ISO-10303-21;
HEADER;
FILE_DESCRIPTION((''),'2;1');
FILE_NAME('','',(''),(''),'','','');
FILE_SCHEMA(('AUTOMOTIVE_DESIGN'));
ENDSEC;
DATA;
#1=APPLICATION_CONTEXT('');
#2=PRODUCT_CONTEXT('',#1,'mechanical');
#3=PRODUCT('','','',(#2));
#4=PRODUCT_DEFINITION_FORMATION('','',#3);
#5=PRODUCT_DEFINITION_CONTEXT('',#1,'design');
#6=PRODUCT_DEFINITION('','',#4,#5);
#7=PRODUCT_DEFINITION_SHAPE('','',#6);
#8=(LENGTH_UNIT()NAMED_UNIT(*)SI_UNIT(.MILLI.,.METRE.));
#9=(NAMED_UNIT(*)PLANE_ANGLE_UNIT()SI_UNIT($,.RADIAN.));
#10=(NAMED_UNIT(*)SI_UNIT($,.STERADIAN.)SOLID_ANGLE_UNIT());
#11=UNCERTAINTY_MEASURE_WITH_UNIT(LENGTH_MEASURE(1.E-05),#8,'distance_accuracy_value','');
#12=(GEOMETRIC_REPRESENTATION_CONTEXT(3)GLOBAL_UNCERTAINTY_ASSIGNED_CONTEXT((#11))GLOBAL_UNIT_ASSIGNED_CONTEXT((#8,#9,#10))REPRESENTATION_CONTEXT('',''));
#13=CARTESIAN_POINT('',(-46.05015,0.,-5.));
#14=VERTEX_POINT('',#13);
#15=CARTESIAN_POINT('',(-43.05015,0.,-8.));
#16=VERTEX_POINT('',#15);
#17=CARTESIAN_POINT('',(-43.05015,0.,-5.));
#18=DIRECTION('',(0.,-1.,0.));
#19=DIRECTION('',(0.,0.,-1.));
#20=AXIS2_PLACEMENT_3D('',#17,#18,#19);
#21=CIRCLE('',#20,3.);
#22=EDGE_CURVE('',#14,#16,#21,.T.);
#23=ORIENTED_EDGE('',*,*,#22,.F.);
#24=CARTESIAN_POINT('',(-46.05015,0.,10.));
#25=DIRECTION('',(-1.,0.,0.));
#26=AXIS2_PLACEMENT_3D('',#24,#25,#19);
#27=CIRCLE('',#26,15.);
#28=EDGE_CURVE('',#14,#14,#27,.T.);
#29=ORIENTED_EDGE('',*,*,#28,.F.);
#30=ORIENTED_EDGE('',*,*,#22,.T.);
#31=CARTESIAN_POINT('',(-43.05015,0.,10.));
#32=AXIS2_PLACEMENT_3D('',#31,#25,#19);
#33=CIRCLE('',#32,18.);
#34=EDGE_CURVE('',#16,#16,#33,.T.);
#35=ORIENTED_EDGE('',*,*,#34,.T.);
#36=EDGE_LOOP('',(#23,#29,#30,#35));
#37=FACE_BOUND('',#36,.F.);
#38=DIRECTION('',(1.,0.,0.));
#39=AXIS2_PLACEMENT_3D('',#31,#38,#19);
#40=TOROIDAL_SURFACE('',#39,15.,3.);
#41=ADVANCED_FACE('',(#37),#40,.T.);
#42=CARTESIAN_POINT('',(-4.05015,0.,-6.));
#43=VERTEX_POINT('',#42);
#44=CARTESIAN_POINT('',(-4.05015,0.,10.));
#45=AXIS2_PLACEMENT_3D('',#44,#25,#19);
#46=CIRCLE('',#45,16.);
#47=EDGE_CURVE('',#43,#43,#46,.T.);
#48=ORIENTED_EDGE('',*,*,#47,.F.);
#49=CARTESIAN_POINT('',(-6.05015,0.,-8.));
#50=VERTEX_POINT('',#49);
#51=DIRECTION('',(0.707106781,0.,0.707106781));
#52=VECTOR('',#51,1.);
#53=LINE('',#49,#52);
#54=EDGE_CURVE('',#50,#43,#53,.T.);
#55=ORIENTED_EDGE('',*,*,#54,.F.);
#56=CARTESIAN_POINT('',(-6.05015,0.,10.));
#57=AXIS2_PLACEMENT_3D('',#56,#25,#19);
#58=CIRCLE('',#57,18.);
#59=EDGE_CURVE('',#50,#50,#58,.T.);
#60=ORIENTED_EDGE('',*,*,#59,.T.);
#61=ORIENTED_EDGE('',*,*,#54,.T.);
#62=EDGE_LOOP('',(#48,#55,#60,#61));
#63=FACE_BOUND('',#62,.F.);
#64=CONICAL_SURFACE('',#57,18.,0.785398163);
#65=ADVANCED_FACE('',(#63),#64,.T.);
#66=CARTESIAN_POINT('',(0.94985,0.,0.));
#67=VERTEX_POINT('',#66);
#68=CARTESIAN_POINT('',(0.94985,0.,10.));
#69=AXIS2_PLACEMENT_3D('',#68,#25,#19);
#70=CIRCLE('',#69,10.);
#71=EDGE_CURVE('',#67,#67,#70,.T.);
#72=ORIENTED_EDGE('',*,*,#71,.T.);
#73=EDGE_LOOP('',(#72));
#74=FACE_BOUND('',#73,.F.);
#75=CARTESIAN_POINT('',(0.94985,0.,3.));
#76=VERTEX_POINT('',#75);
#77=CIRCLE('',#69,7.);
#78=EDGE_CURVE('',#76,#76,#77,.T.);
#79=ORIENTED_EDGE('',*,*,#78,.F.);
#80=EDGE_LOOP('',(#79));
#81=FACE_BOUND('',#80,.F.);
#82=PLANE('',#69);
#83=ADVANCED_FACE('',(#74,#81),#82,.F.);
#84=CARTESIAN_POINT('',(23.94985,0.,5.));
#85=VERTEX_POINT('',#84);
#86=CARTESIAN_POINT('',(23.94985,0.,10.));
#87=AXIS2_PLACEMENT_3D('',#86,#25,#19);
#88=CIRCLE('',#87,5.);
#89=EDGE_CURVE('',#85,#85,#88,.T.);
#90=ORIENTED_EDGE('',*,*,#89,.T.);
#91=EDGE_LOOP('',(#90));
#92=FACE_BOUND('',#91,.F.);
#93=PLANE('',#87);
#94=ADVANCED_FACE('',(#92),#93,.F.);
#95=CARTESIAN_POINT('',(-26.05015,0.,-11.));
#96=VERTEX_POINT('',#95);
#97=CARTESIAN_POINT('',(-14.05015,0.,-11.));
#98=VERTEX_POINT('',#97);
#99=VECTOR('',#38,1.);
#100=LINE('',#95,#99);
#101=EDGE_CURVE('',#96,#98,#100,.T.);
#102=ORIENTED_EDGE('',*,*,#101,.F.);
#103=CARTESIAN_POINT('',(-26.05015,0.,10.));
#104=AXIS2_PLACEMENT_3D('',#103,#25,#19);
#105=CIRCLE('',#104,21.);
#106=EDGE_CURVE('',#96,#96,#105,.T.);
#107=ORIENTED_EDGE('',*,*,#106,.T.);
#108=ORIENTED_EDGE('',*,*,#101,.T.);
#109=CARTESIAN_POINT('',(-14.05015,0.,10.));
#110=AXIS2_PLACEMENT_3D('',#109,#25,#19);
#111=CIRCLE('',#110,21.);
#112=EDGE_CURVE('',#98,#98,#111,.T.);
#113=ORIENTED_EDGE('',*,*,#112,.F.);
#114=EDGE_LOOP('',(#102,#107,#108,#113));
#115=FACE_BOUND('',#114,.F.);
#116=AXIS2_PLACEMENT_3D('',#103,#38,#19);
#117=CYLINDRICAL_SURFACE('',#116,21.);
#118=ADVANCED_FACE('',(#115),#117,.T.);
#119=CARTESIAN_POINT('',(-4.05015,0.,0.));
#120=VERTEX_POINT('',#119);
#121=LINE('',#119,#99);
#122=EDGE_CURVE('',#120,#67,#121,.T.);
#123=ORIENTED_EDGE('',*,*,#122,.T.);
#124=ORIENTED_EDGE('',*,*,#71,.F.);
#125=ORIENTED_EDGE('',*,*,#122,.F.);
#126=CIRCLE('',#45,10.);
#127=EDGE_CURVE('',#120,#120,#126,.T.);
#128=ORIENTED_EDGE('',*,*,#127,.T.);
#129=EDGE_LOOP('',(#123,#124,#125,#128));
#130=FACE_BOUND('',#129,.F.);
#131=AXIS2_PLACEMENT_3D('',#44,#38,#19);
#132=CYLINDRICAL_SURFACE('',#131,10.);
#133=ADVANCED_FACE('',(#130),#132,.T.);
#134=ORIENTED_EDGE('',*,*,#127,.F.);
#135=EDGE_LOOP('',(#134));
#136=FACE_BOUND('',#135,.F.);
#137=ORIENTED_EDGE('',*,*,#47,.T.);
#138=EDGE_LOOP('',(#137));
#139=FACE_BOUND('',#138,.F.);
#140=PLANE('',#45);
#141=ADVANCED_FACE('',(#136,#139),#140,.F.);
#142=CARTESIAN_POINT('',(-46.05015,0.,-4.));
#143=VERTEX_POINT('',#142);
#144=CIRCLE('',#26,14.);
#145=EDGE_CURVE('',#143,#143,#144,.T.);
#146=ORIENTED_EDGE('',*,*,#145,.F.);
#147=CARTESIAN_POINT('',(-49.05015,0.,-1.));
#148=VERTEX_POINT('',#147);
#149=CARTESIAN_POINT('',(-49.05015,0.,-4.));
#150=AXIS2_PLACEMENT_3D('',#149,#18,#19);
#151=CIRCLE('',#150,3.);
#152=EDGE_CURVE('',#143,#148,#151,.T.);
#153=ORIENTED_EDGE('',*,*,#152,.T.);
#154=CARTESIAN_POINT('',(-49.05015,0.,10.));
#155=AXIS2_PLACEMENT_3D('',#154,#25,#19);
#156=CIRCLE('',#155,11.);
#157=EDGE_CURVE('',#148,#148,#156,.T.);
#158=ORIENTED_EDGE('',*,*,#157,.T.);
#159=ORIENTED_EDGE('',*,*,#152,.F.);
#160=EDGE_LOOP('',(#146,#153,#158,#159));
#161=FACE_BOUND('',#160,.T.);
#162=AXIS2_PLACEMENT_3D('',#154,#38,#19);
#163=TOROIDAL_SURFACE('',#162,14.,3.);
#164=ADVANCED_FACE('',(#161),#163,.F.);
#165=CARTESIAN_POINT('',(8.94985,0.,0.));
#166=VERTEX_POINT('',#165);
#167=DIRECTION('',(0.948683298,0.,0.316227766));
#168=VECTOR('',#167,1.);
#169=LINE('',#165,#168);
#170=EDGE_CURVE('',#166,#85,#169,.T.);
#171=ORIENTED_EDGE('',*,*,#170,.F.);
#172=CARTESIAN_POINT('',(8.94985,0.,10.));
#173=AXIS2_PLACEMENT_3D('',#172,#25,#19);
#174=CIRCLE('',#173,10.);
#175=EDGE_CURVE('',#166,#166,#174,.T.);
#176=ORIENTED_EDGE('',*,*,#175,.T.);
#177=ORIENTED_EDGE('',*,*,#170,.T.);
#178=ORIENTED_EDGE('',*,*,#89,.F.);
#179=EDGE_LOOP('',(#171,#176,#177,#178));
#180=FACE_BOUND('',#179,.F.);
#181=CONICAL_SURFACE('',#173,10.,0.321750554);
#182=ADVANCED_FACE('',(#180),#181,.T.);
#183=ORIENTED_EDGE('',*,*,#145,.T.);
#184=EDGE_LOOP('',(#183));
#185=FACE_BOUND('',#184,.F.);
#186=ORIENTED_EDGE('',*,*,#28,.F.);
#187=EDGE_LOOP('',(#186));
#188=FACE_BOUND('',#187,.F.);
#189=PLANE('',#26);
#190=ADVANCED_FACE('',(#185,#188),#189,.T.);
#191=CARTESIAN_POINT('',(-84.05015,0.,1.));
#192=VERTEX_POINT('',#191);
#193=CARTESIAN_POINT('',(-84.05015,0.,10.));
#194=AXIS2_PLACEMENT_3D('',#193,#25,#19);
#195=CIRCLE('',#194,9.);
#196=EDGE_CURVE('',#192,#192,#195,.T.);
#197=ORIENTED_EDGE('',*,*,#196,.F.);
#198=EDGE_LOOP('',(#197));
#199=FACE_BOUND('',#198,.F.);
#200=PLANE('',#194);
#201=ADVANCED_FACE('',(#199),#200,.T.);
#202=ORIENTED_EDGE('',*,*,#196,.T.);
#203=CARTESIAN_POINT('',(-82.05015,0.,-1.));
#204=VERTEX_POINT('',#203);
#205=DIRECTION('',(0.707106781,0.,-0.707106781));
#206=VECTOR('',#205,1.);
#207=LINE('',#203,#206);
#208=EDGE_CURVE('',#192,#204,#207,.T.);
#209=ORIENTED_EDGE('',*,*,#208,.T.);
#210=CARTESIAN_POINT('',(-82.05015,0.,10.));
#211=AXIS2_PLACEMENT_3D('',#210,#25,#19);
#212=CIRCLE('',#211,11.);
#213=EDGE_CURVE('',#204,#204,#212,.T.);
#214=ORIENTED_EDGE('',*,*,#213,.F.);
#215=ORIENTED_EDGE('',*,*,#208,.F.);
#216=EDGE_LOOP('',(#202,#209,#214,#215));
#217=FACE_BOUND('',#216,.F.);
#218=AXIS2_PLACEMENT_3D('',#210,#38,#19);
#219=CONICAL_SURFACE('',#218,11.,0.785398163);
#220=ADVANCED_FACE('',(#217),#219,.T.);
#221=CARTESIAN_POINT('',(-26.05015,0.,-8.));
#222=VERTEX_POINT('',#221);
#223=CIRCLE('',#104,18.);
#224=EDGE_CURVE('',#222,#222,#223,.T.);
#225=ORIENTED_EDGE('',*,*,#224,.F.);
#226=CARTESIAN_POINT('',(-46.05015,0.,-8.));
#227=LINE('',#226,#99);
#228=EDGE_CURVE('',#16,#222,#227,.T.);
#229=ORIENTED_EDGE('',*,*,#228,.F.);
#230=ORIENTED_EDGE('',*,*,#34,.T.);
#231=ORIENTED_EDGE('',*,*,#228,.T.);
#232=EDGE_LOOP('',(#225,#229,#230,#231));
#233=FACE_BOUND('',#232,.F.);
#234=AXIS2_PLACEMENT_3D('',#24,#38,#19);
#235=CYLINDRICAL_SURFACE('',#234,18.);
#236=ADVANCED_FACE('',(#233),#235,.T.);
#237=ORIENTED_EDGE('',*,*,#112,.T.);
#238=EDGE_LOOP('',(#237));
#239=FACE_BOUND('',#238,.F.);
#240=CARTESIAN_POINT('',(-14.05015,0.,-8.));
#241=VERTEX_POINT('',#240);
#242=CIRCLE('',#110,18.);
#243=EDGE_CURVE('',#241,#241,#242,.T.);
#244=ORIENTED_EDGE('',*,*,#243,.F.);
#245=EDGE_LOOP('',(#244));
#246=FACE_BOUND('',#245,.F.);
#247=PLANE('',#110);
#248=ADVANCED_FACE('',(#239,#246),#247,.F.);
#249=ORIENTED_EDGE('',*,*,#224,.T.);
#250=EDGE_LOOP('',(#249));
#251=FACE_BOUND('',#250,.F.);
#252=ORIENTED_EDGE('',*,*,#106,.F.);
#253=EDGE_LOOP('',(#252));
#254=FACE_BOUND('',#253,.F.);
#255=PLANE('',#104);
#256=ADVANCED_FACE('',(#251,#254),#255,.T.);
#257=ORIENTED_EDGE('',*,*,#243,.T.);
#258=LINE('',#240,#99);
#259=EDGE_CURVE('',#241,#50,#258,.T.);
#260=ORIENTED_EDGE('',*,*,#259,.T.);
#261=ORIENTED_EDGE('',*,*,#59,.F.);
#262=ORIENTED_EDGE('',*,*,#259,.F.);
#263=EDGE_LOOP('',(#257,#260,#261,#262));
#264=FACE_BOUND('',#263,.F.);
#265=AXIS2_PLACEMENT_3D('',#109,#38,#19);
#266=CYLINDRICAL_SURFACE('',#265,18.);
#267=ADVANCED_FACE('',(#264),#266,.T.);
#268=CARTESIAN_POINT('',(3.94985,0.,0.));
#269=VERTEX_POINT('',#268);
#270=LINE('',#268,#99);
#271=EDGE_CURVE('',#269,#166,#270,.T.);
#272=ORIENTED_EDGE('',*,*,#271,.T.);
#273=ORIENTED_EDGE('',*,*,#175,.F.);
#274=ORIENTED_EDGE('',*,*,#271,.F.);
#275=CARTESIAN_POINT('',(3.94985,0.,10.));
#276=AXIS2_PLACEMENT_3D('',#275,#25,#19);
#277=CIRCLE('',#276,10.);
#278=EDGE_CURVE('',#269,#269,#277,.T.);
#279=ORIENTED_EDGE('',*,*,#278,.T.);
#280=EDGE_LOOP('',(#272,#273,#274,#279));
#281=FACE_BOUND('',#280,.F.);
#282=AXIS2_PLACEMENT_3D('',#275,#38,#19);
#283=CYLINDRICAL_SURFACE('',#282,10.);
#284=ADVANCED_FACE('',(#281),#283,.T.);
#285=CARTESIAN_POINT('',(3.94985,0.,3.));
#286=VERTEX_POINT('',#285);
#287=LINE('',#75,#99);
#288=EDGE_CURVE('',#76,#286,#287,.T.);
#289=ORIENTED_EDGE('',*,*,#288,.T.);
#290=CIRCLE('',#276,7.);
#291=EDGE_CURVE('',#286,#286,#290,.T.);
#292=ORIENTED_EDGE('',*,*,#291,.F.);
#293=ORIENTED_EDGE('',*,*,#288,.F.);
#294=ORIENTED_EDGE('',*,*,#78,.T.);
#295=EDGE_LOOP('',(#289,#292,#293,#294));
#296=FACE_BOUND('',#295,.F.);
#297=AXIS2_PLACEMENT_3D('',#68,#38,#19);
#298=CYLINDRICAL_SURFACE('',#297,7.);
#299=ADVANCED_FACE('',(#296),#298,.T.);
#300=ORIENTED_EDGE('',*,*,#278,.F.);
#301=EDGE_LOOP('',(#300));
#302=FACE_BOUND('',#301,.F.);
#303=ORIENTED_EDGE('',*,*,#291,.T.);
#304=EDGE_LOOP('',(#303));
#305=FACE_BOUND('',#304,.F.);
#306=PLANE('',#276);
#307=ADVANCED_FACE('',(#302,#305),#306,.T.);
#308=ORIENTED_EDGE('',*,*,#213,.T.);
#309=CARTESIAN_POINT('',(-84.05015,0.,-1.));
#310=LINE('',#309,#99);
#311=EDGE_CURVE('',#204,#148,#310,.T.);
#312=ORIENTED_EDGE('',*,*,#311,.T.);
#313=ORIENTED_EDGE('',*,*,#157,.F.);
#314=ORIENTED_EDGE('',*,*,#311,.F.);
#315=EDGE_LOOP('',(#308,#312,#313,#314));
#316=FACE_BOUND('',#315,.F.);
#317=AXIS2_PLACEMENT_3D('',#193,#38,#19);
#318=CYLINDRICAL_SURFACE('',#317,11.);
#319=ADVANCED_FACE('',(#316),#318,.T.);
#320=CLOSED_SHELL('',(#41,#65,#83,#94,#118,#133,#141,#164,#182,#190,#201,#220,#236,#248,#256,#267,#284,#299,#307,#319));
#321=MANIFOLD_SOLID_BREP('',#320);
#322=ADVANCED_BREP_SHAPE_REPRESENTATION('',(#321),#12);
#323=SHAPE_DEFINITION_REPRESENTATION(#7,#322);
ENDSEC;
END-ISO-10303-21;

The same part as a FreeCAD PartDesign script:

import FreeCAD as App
import Part
import Sketcher


def edges_at(feature, points):
    """Names of the edges that pass closest to the given points."""
    edges = feature.Shape.Edges
    near = lambda p: min(range(len(edges)), key=lambda i: edges[i].distToShape(Part.Vertex(*p))[0])
    return sorted({f"Edge{near(p) + 1}" for p in points})

doc = App.newDocument("Part")
body = doc.addObject("PartDesign::Body", "Body")

# Sketch on XZ plane
sketch1 = body.newObject("Sketcher::SketchObject", "Sketch")
sketch1.AttachmentSupport = (doc.getObject("XZ_Plane"), [""])
sketch1.MapMode = "FlatFace"
sketch1.addGeometry([
    Part.LineSegment(App.Vector(23.9, 10, 0), App.Vector(-84.1, 10, 0)),  # 0
    Part.LineSegment(App.Vector(-84.1, 10, 0), App.Vector(-84.1, -1, 0)),  # 1
    Part.LineSegment(App.Vector(-84.1, -1, 0), App.Vector(-46.1, -1, 0)),  # 2
    Part.LineSegment(App.Vector(-46.1, -1, 0), App.Vector(-46.1, -8, 0)),  # 3
    Part.LineSegment(App.Vector(-46.1, -8, 0), App.Vector(-26.1, -8, 0)),  # 4
    Part.LineSegment(App.Vector(-26.1, -8, 0), App.Vector(-26.1, -11, 0)),  # 5
    Part.LineSegment(App.Vector(-26.1, -11, 0), App.Vector(-14.1, -11, 0)),  # 6
    Part.LineSegment(App.Vector(-14.1, -11, 0), App.Vector(-14.1, -8, 0)),  # 7
    Part.LineSegment(App.Vector(-14.1, -8, 0), App.Vector(-4.1, -8, 0)),  # 8
    Part.LineSegment(App.Vector(-4.1, -8, 0), App.Vector(-4.1, 0, 0)),  # 9
    Part.LineSegment(App.Vector(-4.1, 0, 0), App.Vector(0.9, 0, 0)),  # 10
    Part.LineSegment(App.Vector(0.9, 0, 0), App.Vector(0.9, 3, 0)),  # 11
    Part.LineSegment(App.Vector(0.9, 3, 0), App.Vector(3.9, 3, 0)),  # 12
    Part.LineSegment(App.Vector(3.9, 3, 0), App.Vector(3.9, 0, 0)),  # 13
    Part.LineSegment(App.Vector(3.9, 0, 0), App.Vector(8.9, 0, 0)),  # 14
    Part.LineSegment(App.Vector(8.9, 0, 0), App.Vector(23.9, 5, 0)),  # 15
    Part.LineSegment(App.Vector(23.9, 5, 0), App.Vector(23.9, 10, 0)),  # 16
], False)
sketch1.addGeometry(Part.LineSegment(App.Vector(23.9, 10, 0), App.Vector(-84.1, 10, 0)), True)  # axis
sketch1.addConstraint([
    Sketcher.Constraint("Coincident", 0, 2, 1, 1),
    Sketcher.Constraint("Coincident", 1, 2, 2, 1),
    Sketcher.Constraint("Coincident", 2, 2, 3, 1),
    Sketcher.Constraint("Coincident", 3, 2, 4, 1),
    Sketcher.Constraint("Coincident", 4, 2, 5, 1),
    Sketcher.Constraint("Coincident", 5, 2, 6, 1),
    Sketcher.Constraint("Coincident", 6, 2, 7, 1),
    Sketcher.Constraint("Coincident", 7, 2, 8, 1),
    Sketcher.Constraint("Coincident", 8, 2, 9, 1),
    Sketcher.Constraint("Coincident", 9, 2, 10, 1),
    Sketcher.Constraint("Coincident", 10, 2, 11, 1),
    Sketcher.Constraint("Coincident", 11, 2, 12, 1),
    Sketcher.Constraint("Coincident", 12, 2, 13, 1),
    Sketcher.Constraint("Coincident", 13, 2, 14, 1),
    Sketcher.Constraint("Coincident", 14, 2, 15, 1),
    Sketcher.Constraint("Coincident", 15, 2, 16, 1),
    Sketcher.Constraint("Coincident", 16, 2, 0, 1),
    Sketcher.Constraint("Horizontal", 0),
    Sketcher.Constraint("Vertical", 1),
    Sketcher.Constraint("Horizontal", 2),
    Sketcher.Constraint("Vertical", 3),
    Sketcher.Constraint("Horizontal", 4),
    Sketcher.Constraint("Vertical", 5),
    Sketcher.Constraint("Horizontal", 6),
    Sketcher.Constraint("Vertical", 7),
    Sketcher.Constraint("Horizontal", 8),
    Sketcher.Constraint("Vertical", 9),
    Sketcher.Constraint("Horizontal", 10),
    Sketcher.Constraint("Vertical", 11),
    Sketcher.Constraint("Horizontal", 12),
    Sketcher.Constraint("Vertical", 13),
    Sketcher.Constraint("Horizontal", 14),
    Sketcher.Constraint("Vertical", 16),
    Sketcher.Constraint("Horizontal", 17),
    Sketcher.Constraint("Coincident", 17, 1, 16, 2),
    Sketcher.Constraint("PointOnObject", 9, 2, -1),
    Sketcher.Constraint("PointOnObject", 13, 2, -1),
    Sketcher.Constraint("Horizontal", 4, 2, 7, 2),
    Sketcher.Constraint("Vertical", 1, 2, 17, 2),
    Sketcher.Constraint("Equal", 10, 14),
    Sketcher.Constraint("Equal", 12, 5),
    Sketcher.Constraint("Equal", 7, 11),
    Sketcher.Constraint("Equal", 14, 16),
    Sketcher.Constraint("DistanceX", 0, 2, 0, 1, 108.0),
    Sketcher.Constraint("DistanceX", 2, 1, 2, 2, 38.0),
    Sketcher.Constraint("DistanceX", 4, 1, 4, 2, 20.0),
    Sketcher.Constraint("DistanceX", 6, 1, 6, 2, 12.0),
    Sketcher.Constraint("DistanceX", 8, 1, 8, 2, 10.0),
    Sketcher.Constraint("DistanceX", 10, 1, 10, 2, 5.0),
    Sketcher.Constraint("DistanceX", 12, 1, 12, 2, 3.0),
    Sketcher.Constraint("DistanceY", 1, 2, 1, 1, 11.0),
    Sketcher.Constraint("DistanceY", 3, 2, 3, 1, 7.0),
    Sketcher.Constraint("DistanceY", 9, 1, 9, 2, 8.0),
    Sketcher.Constraint("DistanceX", 0, 2, -1, 1, 84.05015),
])
revolution = body.newObject("PartDesign::Revolution", "Revolution")
revolution.Profile = sketch1
revolution.ReferenceAxis = (sketch1, ["Axis0"])
revolution.Angle = 360
doc.recompute()

chamfer = body.newObject("PartDesign::Chamfer", "Chamfer")
chamfer.Base = (revolution, edges_at(revolution, [(-84.05, 0, 21), (-4.05, 0, 28)]))
chamfer.Size = 2
doc.recompute()

fillet = body.newObject("PartDesign::Fillet", "Fillet")
fillet.Base = (chamfer, edges_at(chamfer, [(-46.05, 0, 28)]))
fillet.Radius = 3
doc.recompute()

fillet2 = body.newObject("PartDesign::Fillet", "Fillet001")
fillet2.Base = (fillet, edges_at(fillet, [(-46.05, 0, 21)]))
fillet2.Radius = 3

doc.recompute()
